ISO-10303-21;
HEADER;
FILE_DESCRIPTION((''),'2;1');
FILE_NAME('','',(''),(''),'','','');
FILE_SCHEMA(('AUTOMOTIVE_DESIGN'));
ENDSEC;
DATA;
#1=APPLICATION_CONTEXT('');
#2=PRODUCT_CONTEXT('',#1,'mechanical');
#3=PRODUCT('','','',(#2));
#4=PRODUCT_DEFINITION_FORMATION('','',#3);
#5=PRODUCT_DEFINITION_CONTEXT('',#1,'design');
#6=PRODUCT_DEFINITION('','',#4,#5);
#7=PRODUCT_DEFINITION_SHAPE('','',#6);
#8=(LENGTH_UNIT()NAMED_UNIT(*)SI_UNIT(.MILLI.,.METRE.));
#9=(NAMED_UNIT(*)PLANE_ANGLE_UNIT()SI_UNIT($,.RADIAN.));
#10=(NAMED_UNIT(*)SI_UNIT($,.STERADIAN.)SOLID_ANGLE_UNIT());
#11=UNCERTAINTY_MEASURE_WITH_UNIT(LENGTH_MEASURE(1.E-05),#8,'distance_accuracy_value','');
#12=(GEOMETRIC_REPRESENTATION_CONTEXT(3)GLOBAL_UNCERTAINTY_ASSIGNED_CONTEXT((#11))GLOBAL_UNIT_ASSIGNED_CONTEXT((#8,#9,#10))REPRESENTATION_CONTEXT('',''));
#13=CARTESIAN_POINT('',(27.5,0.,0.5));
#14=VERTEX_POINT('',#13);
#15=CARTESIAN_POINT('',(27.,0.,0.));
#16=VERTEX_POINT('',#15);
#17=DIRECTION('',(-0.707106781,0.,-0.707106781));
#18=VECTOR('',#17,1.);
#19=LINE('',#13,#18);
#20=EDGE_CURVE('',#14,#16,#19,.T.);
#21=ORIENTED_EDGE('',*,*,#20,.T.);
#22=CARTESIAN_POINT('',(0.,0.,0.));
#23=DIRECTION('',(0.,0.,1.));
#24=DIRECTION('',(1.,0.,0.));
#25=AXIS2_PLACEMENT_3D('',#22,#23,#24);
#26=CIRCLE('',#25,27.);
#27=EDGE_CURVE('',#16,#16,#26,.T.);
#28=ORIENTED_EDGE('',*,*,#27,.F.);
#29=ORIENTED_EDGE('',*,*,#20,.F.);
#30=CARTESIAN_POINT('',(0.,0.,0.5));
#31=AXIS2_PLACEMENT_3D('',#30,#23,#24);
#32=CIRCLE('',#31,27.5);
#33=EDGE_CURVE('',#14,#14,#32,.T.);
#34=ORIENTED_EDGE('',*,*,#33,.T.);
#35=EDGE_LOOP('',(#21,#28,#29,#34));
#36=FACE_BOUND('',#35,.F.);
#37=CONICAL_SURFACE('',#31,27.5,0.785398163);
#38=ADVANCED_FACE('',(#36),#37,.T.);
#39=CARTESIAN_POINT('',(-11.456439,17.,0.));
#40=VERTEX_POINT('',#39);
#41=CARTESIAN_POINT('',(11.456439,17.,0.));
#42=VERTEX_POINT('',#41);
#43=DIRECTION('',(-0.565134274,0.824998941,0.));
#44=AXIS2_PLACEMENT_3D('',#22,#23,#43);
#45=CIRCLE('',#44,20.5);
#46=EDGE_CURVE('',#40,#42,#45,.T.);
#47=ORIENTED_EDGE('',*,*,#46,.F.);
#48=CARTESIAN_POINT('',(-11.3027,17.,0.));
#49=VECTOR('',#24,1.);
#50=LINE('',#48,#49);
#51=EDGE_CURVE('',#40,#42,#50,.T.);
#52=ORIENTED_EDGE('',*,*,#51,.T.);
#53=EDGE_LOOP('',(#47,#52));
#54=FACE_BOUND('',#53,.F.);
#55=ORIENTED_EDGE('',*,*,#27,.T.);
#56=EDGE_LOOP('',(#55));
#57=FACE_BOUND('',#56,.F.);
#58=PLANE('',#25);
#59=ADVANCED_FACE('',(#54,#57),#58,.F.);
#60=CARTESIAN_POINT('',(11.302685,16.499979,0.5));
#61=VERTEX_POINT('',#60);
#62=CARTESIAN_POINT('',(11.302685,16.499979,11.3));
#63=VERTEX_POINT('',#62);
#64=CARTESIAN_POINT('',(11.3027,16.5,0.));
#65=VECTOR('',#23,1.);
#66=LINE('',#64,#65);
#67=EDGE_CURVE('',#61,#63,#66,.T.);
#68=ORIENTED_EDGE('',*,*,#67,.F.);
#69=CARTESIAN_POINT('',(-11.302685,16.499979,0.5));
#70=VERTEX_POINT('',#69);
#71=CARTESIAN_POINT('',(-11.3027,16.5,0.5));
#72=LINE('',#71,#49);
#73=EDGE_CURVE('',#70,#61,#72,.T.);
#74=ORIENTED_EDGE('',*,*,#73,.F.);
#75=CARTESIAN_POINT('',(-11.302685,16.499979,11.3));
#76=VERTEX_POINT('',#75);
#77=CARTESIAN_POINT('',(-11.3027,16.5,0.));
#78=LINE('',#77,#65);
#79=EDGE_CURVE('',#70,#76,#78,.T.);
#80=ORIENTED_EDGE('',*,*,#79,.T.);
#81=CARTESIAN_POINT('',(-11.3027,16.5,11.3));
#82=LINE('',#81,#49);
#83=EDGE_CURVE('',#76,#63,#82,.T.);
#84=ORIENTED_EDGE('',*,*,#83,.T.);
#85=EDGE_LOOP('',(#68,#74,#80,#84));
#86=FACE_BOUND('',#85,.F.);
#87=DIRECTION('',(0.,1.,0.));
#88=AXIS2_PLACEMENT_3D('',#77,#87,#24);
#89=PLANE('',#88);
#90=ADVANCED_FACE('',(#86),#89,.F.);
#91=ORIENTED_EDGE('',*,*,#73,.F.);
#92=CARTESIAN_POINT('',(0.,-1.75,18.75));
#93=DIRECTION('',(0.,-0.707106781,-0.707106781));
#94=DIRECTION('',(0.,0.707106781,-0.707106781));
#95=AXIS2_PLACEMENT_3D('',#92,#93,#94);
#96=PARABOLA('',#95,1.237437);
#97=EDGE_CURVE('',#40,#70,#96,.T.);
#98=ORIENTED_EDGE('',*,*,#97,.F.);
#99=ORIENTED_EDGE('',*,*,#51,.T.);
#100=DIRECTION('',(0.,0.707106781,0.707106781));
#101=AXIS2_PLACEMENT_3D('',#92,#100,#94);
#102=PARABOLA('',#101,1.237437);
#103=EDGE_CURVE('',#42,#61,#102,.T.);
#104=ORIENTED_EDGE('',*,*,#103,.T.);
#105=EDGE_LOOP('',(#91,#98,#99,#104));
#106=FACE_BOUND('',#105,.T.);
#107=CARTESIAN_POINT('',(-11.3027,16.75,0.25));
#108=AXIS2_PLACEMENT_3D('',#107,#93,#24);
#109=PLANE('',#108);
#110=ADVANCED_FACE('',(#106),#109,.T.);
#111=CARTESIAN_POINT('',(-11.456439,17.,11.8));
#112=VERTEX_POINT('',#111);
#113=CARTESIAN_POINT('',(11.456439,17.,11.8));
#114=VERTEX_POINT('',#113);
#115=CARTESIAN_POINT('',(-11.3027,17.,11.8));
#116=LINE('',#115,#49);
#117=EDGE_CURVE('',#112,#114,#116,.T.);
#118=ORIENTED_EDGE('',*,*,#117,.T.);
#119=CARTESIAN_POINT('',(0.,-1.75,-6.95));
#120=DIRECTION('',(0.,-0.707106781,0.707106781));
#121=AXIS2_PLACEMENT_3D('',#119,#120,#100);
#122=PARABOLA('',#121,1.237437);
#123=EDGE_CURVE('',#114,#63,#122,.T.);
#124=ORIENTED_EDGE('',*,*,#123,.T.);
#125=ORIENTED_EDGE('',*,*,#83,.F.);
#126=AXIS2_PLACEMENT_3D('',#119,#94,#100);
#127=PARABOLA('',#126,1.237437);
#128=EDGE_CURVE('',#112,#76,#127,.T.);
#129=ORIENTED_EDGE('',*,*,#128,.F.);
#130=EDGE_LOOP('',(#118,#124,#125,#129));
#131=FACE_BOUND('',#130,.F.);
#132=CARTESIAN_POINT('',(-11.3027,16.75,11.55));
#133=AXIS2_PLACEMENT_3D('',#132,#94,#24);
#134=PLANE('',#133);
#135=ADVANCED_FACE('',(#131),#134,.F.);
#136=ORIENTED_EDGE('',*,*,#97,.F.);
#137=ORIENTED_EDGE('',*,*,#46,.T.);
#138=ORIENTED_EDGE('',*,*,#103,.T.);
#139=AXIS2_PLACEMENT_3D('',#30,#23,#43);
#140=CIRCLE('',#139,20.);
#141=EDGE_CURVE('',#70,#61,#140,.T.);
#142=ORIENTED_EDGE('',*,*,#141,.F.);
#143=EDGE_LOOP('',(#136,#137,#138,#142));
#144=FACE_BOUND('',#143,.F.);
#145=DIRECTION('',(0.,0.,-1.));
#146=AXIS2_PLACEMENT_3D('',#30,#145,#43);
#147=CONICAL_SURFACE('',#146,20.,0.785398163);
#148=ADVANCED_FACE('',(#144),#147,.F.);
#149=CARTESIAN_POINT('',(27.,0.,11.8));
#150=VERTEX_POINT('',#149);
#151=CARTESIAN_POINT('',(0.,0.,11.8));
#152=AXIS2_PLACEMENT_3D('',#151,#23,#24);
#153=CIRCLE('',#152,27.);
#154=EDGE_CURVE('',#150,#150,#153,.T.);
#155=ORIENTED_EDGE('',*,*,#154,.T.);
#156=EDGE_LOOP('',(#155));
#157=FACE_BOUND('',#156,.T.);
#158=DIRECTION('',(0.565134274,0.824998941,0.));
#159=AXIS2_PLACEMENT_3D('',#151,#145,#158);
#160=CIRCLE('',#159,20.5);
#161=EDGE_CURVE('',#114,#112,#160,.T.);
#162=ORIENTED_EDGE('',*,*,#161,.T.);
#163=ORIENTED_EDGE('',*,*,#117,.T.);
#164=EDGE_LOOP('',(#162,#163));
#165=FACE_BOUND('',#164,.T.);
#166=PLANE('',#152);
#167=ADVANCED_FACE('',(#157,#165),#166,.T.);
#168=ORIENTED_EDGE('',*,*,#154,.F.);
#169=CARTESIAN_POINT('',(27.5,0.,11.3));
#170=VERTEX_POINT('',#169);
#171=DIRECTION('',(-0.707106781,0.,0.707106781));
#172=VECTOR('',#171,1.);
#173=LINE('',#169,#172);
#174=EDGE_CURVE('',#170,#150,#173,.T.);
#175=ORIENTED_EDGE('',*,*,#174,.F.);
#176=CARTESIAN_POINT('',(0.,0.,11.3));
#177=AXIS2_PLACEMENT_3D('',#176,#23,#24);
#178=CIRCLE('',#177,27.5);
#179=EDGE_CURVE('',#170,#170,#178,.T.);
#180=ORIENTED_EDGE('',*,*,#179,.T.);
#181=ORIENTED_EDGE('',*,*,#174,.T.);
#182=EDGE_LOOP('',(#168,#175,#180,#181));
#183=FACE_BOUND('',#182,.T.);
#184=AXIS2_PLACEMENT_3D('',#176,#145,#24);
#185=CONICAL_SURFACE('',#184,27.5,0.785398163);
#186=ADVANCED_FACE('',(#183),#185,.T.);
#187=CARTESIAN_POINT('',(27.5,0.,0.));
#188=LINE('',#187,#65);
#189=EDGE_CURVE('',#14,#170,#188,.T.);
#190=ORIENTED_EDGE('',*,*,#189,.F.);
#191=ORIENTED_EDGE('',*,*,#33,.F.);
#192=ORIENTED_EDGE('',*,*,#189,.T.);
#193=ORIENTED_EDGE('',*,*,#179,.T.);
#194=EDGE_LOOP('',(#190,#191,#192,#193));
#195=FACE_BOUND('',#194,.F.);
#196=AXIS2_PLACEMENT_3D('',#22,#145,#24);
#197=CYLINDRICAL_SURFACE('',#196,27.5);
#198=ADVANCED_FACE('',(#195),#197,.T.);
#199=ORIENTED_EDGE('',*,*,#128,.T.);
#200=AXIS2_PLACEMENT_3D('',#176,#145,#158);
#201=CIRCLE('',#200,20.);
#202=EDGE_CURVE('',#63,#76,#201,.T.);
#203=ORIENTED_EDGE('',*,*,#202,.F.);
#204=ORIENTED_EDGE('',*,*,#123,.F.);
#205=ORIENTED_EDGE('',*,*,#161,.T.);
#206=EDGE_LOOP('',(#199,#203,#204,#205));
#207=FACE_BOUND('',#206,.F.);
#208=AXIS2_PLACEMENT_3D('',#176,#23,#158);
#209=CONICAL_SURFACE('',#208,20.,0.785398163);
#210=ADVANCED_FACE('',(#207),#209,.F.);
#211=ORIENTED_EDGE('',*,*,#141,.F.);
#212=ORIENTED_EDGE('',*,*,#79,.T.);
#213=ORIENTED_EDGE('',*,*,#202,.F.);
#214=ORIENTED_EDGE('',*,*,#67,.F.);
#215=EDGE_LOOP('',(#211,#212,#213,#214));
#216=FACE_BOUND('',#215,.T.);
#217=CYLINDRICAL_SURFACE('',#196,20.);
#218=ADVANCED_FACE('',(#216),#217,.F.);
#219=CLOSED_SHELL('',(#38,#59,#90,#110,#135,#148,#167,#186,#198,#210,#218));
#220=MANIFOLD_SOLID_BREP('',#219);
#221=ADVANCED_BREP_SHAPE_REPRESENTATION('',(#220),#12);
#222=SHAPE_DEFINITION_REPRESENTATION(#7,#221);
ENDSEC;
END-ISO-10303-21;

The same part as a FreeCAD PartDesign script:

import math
import FreeCAD as App
import Part
import Sketcher
Q = App.Units.Quantity


def edges_at(feature, points):
    """Names of the edges that pass closest to the given points."""
    edges = feature.Shape.Edges
    near = lambda p: min(range(len(edges)), key=lambda i: edges[i].distToShape(Part.Vertex(*p))[0])
    return sorted({f"Edge{near(p) + 1}" for p in points})

doc = App.newDocument("Part")
body = doc.addObject("PartDesign::Body", "Body")

# Sketch on XY plane
sketch1 = doc.addObject("Sketcher::SketchObject", "Sketch")
body.addObject(sketch1)
sketch1.AttachmentSupport = (doc.XY_Plane, [""])
sketch1.MapMode = "FlatFace"
sketch1.addGeometry([
    Part.Circle(App.Vector(0, 0, 0), App.Vector(0, 0, 1), 28),
    Part.ArcOfCircle(Part.Circle(App.Vector(0, 0, 0), App.Vector(0, 0, 1), 20), math.radians(124), math.radians(416)),
    Part.LineSegment(App.Vector(11, 16, 0), App.Vector(-11, 16, 0)),
], False)
sketch1.addConstraint([
    Sketcher.Constraint("Coincident", 1, 1, 2, 2),
    Sketcher.Constraint("Coincident", 2, 1, 1, 2),
    Sketcher.Constraint("Horizontal", 2),
    Sketcher.Constraint("Coincident", 0, 3, -1, 1),
    Sketcher.Constraint("Coincident", 1, 3, -1, 1),
    Sketcher.Constraint("Diameter", 0, Q("55 mm")),
    Sketcher.Constraint("Radius", 1, Q("20 mm")),
    Sketcher.Constraint("DistanceY", -1, 1, 1, 1, Q("16.5 mm")),
])
pad1 = doc.addObject("PartDesign::Pad", "Pad")
body.addObject(pad1)
pad1.Profile = sketch1
pad1.Length = 11.8
doc.recompute()

chamfer = doc.addObject("PartDesign::Chamfer", "Chamfer")
body.addObject(chamfer)
chamfer.Base = (pad1, edges_at(pad1, [
    (-27.5, 0, 11.8),
    (-27.5, 0, 0),
    (0, -20, 11.8),
    (0, 16.5, 11.8),
    (0, -20, 0),
    (0, 16.5, 0),
]))
chamfer.Size = 0.5

doc.recompute()
